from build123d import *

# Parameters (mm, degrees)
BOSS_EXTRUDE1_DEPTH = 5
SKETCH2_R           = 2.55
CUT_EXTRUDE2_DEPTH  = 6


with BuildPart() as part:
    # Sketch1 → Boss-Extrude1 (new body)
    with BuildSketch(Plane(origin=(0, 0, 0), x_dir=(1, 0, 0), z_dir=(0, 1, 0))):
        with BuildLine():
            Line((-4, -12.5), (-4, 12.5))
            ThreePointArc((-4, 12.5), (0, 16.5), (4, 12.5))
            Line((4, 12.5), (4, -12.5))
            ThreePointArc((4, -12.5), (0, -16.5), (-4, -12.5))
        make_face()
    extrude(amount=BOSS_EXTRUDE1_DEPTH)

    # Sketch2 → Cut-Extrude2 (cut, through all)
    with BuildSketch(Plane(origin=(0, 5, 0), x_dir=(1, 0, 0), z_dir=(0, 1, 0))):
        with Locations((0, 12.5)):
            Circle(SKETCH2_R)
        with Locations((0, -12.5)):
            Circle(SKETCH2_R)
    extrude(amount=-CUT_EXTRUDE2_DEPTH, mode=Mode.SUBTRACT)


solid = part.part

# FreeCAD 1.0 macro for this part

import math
import FreeCAD as App
import Part
import Sketcher

V = App.Vector
Q = App.Units.Quantity

doc = App.newDocument("Part")
body = doc.addObject("PartDesign::Body", "Body")

# Sketch on XZ plane
sketch1 = body.newObject("Sketcher::SketchObject", "Sketch")
sketch1.AttachmentSupport = (doc.getObject("XZ_Plane"), [""])
sketch1.MapMode = "FlatFace"
sketch1.addGeometry([
    Part.LineSegment(V(-4, -12.5, 0), V(-4, 12.5, 0)),
    Part.ArcOfCircle(Part.Circle(V(0, 12.5, 0), V(0, 0, 1), 4), math.radians(0), math.radians(180)),
    Part.LineSegment(V(4, 12.5, 0), V(4, -12.5, 0)),
    Part.ArcOfCircle(Part.Circle(V(0, -12.5, 0), V(0, 0, 1), 4), math.radians(180), math.radians(360)),
], False)
sketch1.addConstraint([
    Sketcher.Constraint("Tangent", 0, 2, 1, 2),
    Sketcher.Constraint("Tangent", 1, 1, 2, 1),
    Sketcher.Constraint("Tangent", 2, 2, 3, 2),
    Sketcher.Constraint("Tangent", 3, 1, 0, 1),
    Sketcher.Constraint("Vertical", 0),
    Sketcher.Constraint("Vertical", 2),
    Sketcher.Constraint("Symmetric", 1, 3, 3, 3, -1, 1),
    Sketcher.Constraint("Radius", 1, Q("4 mm")),
    Sketcher.Constraint("DistanceY", 0, 1, 0, 2, Q("25 mm")),
])
pad1 = body.newObject("PartDesign::Pad", "Pad")
pad1.Profile = sketch1
pad1.Length = 5
pad1.Reversed = True

# Sketch on XZ plane
sketch2 = body.newObject("Sketcher::SketchObject", "Sketch001")
sketch2.AttachmentSupport = (doc.getObject("XZ_Plane"), [""])
sketch2.MapMode = "FlatFace"
sketch2.AttachmentOffset = App.Placement(V(0, 0, -5), App.Rotation())
sketch2.addGeometry([
    Part.Circle(V(0, -12.5, 0), V(0, 0, 1), 2.5),
    Part.Circle(V(0, 12.5, 0), V(0, 0, 1), 2.5),
], False)
sketch2.addConstraint([
    Sketcher.Constraint("Equal", 0, 1),
    Sketcher.Constraint("Symmetric", 0, 3, 1, 3, -1, 1),
    Sketcher.Constraint("PointOnObject", 0, 3, -2),
    Sketcher.Constraint("Diameter", 0, Q("5.1 mm")),
    Sketcher.Constraint("DistanceY", 0, 3, 1, 3, Q("25 mm")),
])
pocket1 = body.newObject("PartDesign::Pocket", "Pocket")
pocket1.Profile = sketch2
pocket1.Type = "ThroughAll"
pocket1.Reversed = True

doc.recompute()
